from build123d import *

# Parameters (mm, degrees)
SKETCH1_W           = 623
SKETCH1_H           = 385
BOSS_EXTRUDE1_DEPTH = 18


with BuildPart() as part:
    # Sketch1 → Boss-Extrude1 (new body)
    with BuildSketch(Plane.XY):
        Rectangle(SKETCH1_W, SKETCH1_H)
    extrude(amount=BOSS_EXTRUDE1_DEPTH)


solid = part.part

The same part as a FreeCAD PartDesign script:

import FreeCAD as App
import Part
import Sketcher

V = App.Vector


def add_polygon(sketch, points):
    """Adds a closed chain of lines whose ends are joined by coincident constraints."""
    first, n = sketch.GeometryCount, len(points)
    for a, b in zip(points, points[1:] + points[:1]):
        sketch.addGeometry(Part.LineSegment(App.Vector(*a, 0), App.Vector(*b, 0)), False)
    for i in range(n):
        sketch.addConstraint(Sketcher.Constraint("Coincident", first + i, 2, first + (i + 1) % n, 1))

doc = App.newDocument("Part")
params = doc.addObject("Spreadsheet::Sheet", "Params")
for row, (alias, value) in enumerate([
    ("sketch1_width", "623 mm"),
    ("sketch1_height", "385 mm"),
    ("pad1_length", "18 mm"),
], start=1):
    params.set(f"A{row}", alias)
    params.set(f"B{row}", "=" + value)
    params.setAlias(f"B{row}", alias)

body = doc.addObject("PartDesign::Body", "Body")

sketch1 = body.newObject("Sketcher::SketchObject", "Sketch")
sketch1.AttachmentSupport = (doc.getObject("XY_Plane"), [""])
sketch1.MapMode = "FlatFace"
add_polygon(sketch1, [(-312, 192), (-312, -192), (312, -192), (312, 192)])
sketch1.addConstraint(Sketcher.Constraint("Vertical", 0))
sketch1.addConstraint(Sketcher.Constraint("Horizontal", 1))
sketch1.addConstraint(Sketcher.Constraint("Vertical", 2))
sketch1.addConstraint(Sketcher.Constraint("Horizontal", 3))
sketch1.addConstraint(Sketcher.Constraint("Symmetric", 0, 2, 2, 2, -1, 1))
sketch1.addConstraint(Sketcher.Constraint("DistanceX", 1, 1, 1, 2, 623.0))
sketch1.addConstraint(Sketcher.Constraint("DistanceY", 0, 2, 0, 1, 385.0))
sketch1.setExpression("Constraints[9]", "Params.sketch1_width")
sketch1.setExpression("Constraints[10]", "Params.sketch1_height")
pad1 = body.newObject("PartDesign::Pad", "Pad")
pad1.Profile = sketch1
pad1.setExpression("Length", "Params.pad1_length")

doc.recompute()
